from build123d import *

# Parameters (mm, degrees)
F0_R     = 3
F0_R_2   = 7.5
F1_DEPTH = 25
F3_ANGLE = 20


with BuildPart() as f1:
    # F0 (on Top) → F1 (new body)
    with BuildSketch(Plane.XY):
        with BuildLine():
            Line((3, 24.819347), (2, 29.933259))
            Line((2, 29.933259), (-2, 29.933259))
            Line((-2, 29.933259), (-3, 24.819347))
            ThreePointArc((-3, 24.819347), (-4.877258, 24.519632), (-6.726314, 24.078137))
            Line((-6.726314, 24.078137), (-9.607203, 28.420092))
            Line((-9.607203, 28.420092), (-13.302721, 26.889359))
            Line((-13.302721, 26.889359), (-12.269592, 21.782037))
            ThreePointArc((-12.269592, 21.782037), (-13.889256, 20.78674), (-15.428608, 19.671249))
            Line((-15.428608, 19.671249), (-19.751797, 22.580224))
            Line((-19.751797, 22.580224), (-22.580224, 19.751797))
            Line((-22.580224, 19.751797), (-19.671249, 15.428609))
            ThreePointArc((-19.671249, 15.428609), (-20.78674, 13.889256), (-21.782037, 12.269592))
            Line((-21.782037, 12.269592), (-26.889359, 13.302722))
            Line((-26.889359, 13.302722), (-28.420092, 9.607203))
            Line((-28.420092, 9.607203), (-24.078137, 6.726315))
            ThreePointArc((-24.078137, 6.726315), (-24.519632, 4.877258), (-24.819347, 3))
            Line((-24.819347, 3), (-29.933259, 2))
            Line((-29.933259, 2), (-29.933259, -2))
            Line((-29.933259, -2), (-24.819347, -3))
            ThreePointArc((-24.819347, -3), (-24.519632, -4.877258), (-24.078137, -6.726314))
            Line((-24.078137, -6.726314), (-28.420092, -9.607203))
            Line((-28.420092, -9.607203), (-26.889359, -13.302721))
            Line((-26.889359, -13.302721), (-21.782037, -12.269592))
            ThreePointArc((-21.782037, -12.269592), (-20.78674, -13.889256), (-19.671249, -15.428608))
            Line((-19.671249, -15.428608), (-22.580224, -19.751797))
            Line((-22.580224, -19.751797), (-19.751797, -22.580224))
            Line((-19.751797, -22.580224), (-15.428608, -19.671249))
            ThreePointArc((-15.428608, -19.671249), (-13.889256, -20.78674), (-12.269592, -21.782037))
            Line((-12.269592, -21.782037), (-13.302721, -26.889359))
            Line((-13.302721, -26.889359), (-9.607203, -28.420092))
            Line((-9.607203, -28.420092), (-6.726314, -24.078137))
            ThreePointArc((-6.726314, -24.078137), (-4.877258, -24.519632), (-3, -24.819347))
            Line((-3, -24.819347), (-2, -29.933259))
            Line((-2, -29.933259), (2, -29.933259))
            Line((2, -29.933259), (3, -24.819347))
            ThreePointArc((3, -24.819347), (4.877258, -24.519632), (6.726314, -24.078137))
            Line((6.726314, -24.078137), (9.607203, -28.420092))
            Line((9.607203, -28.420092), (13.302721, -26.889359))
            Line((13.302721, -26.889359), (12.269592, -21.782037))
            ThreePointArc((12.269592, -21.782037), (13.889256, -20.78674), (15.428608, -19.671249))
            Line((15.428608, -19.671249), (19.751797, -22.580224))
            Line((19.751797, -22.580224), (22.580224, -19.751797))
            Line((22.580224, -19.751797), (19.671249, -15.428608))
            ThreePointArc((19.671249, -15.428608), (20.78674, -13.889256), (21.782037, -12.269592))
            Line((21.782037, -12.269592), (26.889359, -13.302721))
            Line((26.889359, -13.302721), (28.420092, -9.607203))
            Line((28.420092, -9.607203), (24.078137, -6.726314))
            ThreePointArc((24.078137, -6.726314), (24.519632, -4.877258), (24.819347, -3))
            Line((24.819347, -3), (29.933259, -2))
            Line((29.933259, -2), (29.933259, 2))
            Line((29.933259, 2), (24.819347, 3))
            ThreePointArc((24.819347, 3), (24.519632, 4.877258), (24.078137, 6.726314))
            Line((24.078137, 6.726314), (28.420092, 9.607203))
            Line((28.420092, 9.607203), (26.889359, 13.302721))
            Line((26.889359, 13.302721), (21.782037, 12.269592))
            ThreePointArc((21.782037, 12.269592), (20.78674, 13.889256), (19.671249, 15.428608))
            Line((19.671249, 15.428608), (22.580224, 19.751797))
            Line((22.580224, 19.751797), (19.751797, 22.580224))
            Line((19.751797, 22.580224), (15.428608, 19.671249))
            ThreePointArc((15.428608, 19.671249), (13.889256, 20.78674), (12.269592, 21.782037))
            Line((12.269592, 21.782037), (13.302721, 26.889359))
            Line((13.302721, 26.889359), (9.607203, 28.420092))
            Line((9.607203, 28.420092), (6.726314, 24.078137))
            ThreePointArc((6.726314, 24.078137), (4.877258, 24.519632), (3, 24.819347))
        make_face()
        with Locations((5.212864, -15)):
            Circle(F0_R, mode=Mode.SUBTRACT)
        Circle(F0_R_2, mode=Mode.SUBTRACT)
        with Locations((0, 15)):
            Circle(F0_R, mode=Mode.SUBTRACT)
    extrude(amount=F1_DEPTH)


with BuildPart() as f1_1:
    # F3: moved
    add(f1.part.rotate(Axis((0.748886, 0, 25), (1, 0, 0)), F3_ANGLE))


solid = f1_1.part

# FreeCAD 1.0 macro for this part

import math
import FreeCAD as App
import Part
import Sketcher
Q = App.Units.Quantity

doc = App.newDocument("Part")
params = doc.addObject("Spreadsheet::Sheet", "Params")
for row, (alias, value) in enumerate([
    ("sketch1_diameter", "6 mm"),
    ("sketch1_diameter2", "15 mm"),
    ("sketch1_width", "4 mm"),
    ("sketch1_length", "4 mm"),
    ("pad1_length", "25 mm"),
], start=1):
    params.set(f"A{row}", alias)
    params.set(f"B{row}", "=" + value)
    params.setAlias(f"B{row}", alias)

body = doc.addObject("PartDesign::Body", "Body")

sketch1 = doc.addObject("Sketcher::SketchObject", "Sketch")
body.addObject(sketch1)
sketch1.AttachmentSupport = (doc.XY_Plane, [""])
sketch1.MapMode = "FlatFace"
sketch1.addGeometry([
    Part.LineSegment(App.Vector(3, 24.819347, 0), App.Vector(2, 29.933259, 0)),
    Part.LineSegment(App.Vector(2, 29.933259, 0), App.Vector(-2, 29.933259, 0)),
    Part.LineSegment(App.Vector(-2, 29.933259, 0), App.Vector(-3, 24.819347, 0)),
    Part.ArcOfCircle(Part.Circle(App.Vector(-0.00002, 0.000106, 0), App.Vector(0, 0, 1), 24.999892), math.radians(96.892085), math.radians(105.607917)),
    Part.LineSegment(App.Vector(-6.726314, 24.078137, 0), App.Vector(-9.607203, 28.420092, 0)),
    Part.LineSegment(App.Vector(-9.607203, 28.420092, 0), App.Vector(-13.302721, 26.889359, 0)),
    Part.LineSegment(App.Vector(-13.302721, 26.889359, 0), App.Vector(-12.269592, 21.782037, 0)),
    Part.ArcOfCircle(Part.Circle(App.Vector(0.000046, -0.000059, 0), App.Vector(0, 0, 1), 25.000075), math.radians(119.392129), math.radians(128.107896)),
    Part.LineSegment(App.Vector(-15.428608, 19.671249, 0), App.Vector(-19.751797, 22.580224, 0)),
    Part.LineSegment(App.Vector(-19.751797, 22.580224, 0), App.Vector(-22.580224, 19.751797, 0)),
    Part.LineSegment(App.Vector(-22.580224, 19.751797, 0), App.Vector(-19.671249, 15.428609, 0)),
    Part.ArcOfCircle(Part.Circle(App.Vector(0.00015, -0.000102, 0), App.Vector(0, 0, 1), 25.000181), math.radians(141.89213), math.radians(150.607862)),
    Part.LineSegment(App.Vector(-21.782037, 12.269592, 0), App.Vector(-26.889359, 13.302722, 0)),
    Part.LineSegment(App.Vector(-26.889359, 13.302722, 0), App.Vector(-28.420092, 9.607203, 0)),
    Part.LineSegment(App.Vector(-28.420092, 9.607203, 0), App.Vector(-24.078137, 6.726315, 0)),
    Part.ArcOfCircle(Part.Circle(App.Vector(-0.00006, 0.000013, 0), App.Vector(0, 0, 1), 24.999939), math.radians(164.392093), math.radians(173.107911)),
    Part.LineSegment(App.Vector(-24.819347, 3, 0), App.Vector(-29.933259, 2, 0)),
    Part.LineSegment(App.Vector(-29.933259, 2, 0), App.Vector(-29.933259, -2, 0)),
    Part.LineSegment(App.Vector(-29.933259, -2, 0), App.Vector(-24.819347, -3, 0)),
    Part.ArcOfCircle(Part.Circle(App.Vector(-0.000106, -0.00002, 0), App.Vector(0, 0, 1), 24.999892), math.radians(-173.107915), math.radians(-164.392083)),
    Part.LineSegment(App.Vector(-24.078137, -6.726314, 0), App.Vector(-28.420092, -9.607203, 0)),
    Part.LineSegment(App.Vector(-28.420092, -9.607203, 0), App.Vector(-26.889359, -13.302721, 0)),
    Part.LineSegment(App.Vector(-26.889359, -13.302721, 0), App.Vector(-21.782037, -12.269592, 0)),
    Part.ArcOfCircle(Part.Circle(App.Vector(0.000059, 0.000046, 0), App.Vector(0, 0, 1), 25.000075), math.radians(-150.607871), math.radians(-141.892104)),
    Part.LineSegment(App.Vector(-19.671249, -15.428608, 0), App.Vector(-22.580224, -19.751797, 0)),
    Part.LineSegment(App.Vector(-22.580224, -19.751797, 0), App.Vector(-19.751797, -22.580224, 0)),
    Part.LineSegment(App.Vector(-19.751797, -22.580224, 0), App.Vector(-15.428608, -19.671249, 0)),
    Part.ArcOfCircle(Part.Circle(App.Vector(0.000046, 0.000059, 0), App.Vector(0, 0, 1), 25.000075), math.radians(-128.107896), math.radians(-119.392129)),
    Part.LineSegment(App.Vector(-12.269592, -21.782037, 0), App.Vector(-13.302721, -26.889359, 0)),
    Part.LineSegment(App.Vector(-13.302721, -26.889359, 0), App.Vector(-9.607203, -28.420092, 0)),
    Part.LineSegment(App.Vector(-9.607203, -28.420092, 0), App.Vector(-6.726314, -24.078137, 0)),
    Part.ArcOfCircle(Part.Circle(App.Vector(-0.00002, -0.000106, 0), App.Vector(0, 0, 1), 24.999892), math.radians(-105.607917), math.radians(-96.892085)),
    Part.LineSegment(App.Vector(-3, -24.819347, 0), App.Vector(-2, -29.933259, 0)),
    Part.LineSegment(App.Vector(-2, -29.933259, 0), App.Vector(2, -29.933259, 0)),
    Part.LineSegment(App.Vector(2, -29.933259, 0), App.Vector(3, -24.819347, 0)),
    Part.ArcOfCircle(Part.Circle(App.Vector(0.00002, -0.000106, 0), App.Vector(0, 0, 1), 24.999892), math.radians(-83.107915), math.radians(-74.392083)),
    Part.LineSegment(App.Vector(6.726314, -24.078137, 0), App.Vector(9.607203, -28.420092, 0)),
    Part.LineSegment(App.Vector(9.607203, -28.420092, 0), App.Vector(13.302721, -26.889359, 0)),
    Part.LineSegment(App.Vector(13.302721, -26.889359, 0), App.Vector(12.269592, -21.782037, 0)),
    Part.ArcOfCircle(Part.Circle(App.Vector(-0.000046, 0.000059, 0), App.Vector(0, 0, 1), 25.000075), math.radians(-60.607871), math.radians(-51.892104)),
    Part.LineSegment(App.Vector(15.428608, -19.671249, 0), App.Vector(19.751797, -22.580224, 0)),
    Part.LineSegment(App.Vector(19.751797, -22.580224, 0), App.Vector(22.580224, -19.751797, 0)),
    Part.LineSegment(App.Vector(22.580224, -19.751797, 0), App.Vector(19.671249, -15.428608, 0)),
    Part.ArcOfCircle(Part.Circle(App.Vector(-0.000059, 0.000046, 0), App.Vector(0, 0, 1), 25.000075), math.radians(-38.107896), math.radians(-29.392129)),
    Part.LineSegment(App.Vector(21.782037, -12.269592, 0), App.Vector(26.889359, -13.302721, 0)),
    Part.LineSegment(App.Vector(26.889359, -13.302721, 0), App.Vector(28.420092, -9.607203, 0)),
    Part.LineSegment(App.Vector(28.420092, -9.607203, 0), App.Vector(24.078137, -6.726314, 0)),
    Part.ArcOfCircle(Part.Circle(App.Vector(0.000106, -0.00002, 0), App.Vector(0, 0, 1), 24.999892), math.radians(-15.607917), math.radians(-6.892085)),
    Part.LineSegment(App.Vector(24.819347, -3, 0), App.Vector(29.933259, -2, 0)),
    Part.LineSegment(App.Vector(29.933259, -2, 0), App.Vector(29.933259, 2, 0)),
    Part.LineSegment(App.Vector(29.933259, 2, 0), App.Vector(24.819347, 3, 0)),
    Part.ArcOfCircle(Part.Circle(App.Vector(0.000106, 0.00002, 0), App.Vector(0, 0, 1), 24.999892), math.radians(6.892085), math.radians(15.607917)),
    Part.LineSegment(App.Vector(24.078137, 6.726314, 0), App.Vector(28.420092, 9.607203, 0)),
    Part.LineSegment(App.Vector(28.420092, 9.607203, 0), App.Vector(26.889359, 13.302721, 0)),
    Part.LineSegment(App.Vector(26.889359, 13.302721, 0), App.Vector(21.782037, 12.269592, 0)),
    Part.ArcOfCircle(Part.Circle(App.Vector(-0.000059, -0.000046, 0), App.Vector(0, 0, 1), 25.000075), math.radians(29.392129), math.radians(38.107896)),
    Part.LineSegment(App.Vector(19.671249, 15.428608, 0), App.Vector(22.580224, 19.751797, 0)),
    Part.LineSegment(App.Vector(22.580224, 19.751797, 0), App.Vector(19.751797, 22.580224, 0)),
    Part.LineSegment(App.Vector(19.751797, 22.580224, 0), App.Vector(15.428608, 19.671249, 0)),
    Part.ArcOfCircle(Part.Circle(App.Vector(-0.000046, -0.000059, 0), App.Vector(0, 0, 1), 25.000075), math.radians(51.892104), math.radians(60.607871)),
    Part.LineSegment(App.Vector(12.269592, 21.782037, 0), App.Vector(13.302721, 26.889359, 0)),
    Part.LineSegment(App.Vector(13.302721, 26.889359, 0), App.Vector(9.607203, 28.420092, 0)),
    Part.LineSegment(App.Vector(9.607203, 28.420092, 0), App.Vector(6.726314, 24.078137, 0)),
    Part.ArcOfCircle(Part.Circle(App.Vector(0.00002, 0.000106, 0), App.Vector(0, 0, 1), 24.999892), math.radians(74.392083), math.radians(83.107915)),
    Part.Circle(App.Vector(5.212864, -15, 0), App.Vector(0, 0, 1), 3),
    Part.Circle(App.Vector(0, 0, 0), App.Vector(0, 0, 1), 7.5),
    Part.Circle(App.Vector(0, 15, 0), App.Vector(0, 0, 1), 3),
], False)
sketch1.addConstraint([
    Sketcher.Constraint("Coincident", 0, 2, 1, 1),
    Sketcher.Constraint("Coincident", 1, 2, 2, 1),
    Sketcher.Constraint("Coincident", 2, 2, 3, 1),
    Sketcher.Constraint("Coincident", 3, 2, 4, 1),
    Sketcher.Constraint("Coincident", 4, 2, 5, 1),
    Sketcher.Constraint("Coincident", 5, 2, 6, 1),
    Sketcher.Constraint("Coincident", 6, 2, 7, 1),
    Sketcher.Constraint("Coincident", 7, 2, 8, 1),
    Sketcher.Constraint("Coincident", 8, 2, 9, 1),
    Sketcher.Constraint("Coincident", 9, 2, 10, 1),
    Sketcher.Constraint("Coincident", 10, 2, 11, 1),
    Sketcher.Constraint("Coincident", 11, 2, 12, 1),
    Sketcher.Constraint("Coincident", 12, 2, 13, 1),
    Sketcher.Constraint("Coincident", 13, 2, 14, 1),
    Sketcher.Constraint("Coincident", 14, 2, 15, 1),
    Sketcher.Constraint("Coincident", 15, 2, 16, 1),
    Sketcher.Constraint("Coincident", 16, 2, 17, 1),
    Sketcher.Constraint("Coincident", 17, 2, 18, 1),
    Sketcher.Constraint("Coincident", 18, 2, 19, 1),
    Sketcher.Constraint("Coincident", 19, 2, 20, 1),
    Sketcher.Constraint("Coincident", 20, 2, 21, 1),
    Sketcher.Constraint("Coincident", 21, 2, 22, 1),
    Sketcher.Constraint("Coincident", 22, 2, 23, 1),
    Sketcher.Constraint("Coincident", 23, 2, 24, 1),
    Sketcher.Constraint("Coincident", 24, 2, 25, 1),
    Sketcher.Constraint("Coincident", 25, 2, 26, 1),
    Sketcher.Constraint("Coincident", 26, 2, 27, 1),
    Sketcher.Constraint("Coincident", 27, 2, 28, 1),
    Sketcher.Constraint("Coincident", 28, 2, 29, 1),
    Sketcher.Constraint("Coincident", 29, 2, 30, 1),
    Sketcher.Constraint("Coincident", 30, 2, 31, 1),
    Sketcher.Constraint("Coincident", 31, 2, 32, 1),
    Sketcher.Constraint("Coincident", 32, 2, 33, 1),
    Sketcher.Constraint("Coincident", 33, 2, 34, 1),
    Sketcher.Constraint("Coincident", 34, 2, 35, 1),
    Sketcher.Constraint("Coincident", 35, 2, 36, 1),
    Sketcher.Constraint("Coincident", 36, 2, 37, 1),
    Sketcher.Constraint("Coincident", 37, 2, 38, 1),
    Sketcher.Constraint("Coincident", 38, 2, 39, 1),
    Sketcher.Constraint("Coincident", 39, 2, 40, 1),
    Sketcher.Constraint("Coincident", 40, 2, 41, 1),
    Sketcher.Constraint("Coincident", 41, 2, 42, 1),
    Sketcher.Constraint("Coincident", 42, 2, 43, 1),
    Sketcher.Constraint("Coincident", 43, 2, 44, 1),
    Sketcher.Constraint("Coincident", 44, 2, 45, 1),
    Sketcher.Constraint("Coincident", 45, 2, 46, 1),
    Sketcher.Constraint("Coincident", 46, 2, 47, 1),
    Sketcher.Constraint("Coincident", 47, 2, 48, 1),
    Sketcher.Constraint("Coincident", 48, 2, 49, 1),
    Sketcher.Constraint("Coincident", 49, 2, 50, 1),
    Sketcher.Constraint("Coincident", 50, 2, 51, 1),
    Sketcher.Constraint("Coincident", 51, 2, 52, 1),
    Sketcher.Constraint("Coincident", 52, 2, 53, 1),
    Sketcher.Constraint("Coincident", 53, 2, 54, 1),
    Sketcher.Constraint("Coincident", 54, 2, 55, 1),
    Sketcher.Constraint("Coincident", 55, 2, 56, 1),
    Sketcher.Constraint("Coincident", 56, 2, 57, 1),
    Sketcher.Constraint("Coincident", 57, 2, 58, 1),
    Sketcher.Constraint("Coincident", 58, 2, 59, 1),
    Sketcher.Constraint("Coincident", 59, 2, 60, 1),
    Sketcher.Constraint("Coincident", 60, 2, 61, 1),
    Sketcher.Constraint("Coincident", 61, 2, 62, 1),
    Sketcher.Constraint("Coincident", 62, 2, 63, 1),
    Sketcher.Constraint("Coincident", 63, 2, 0, 1),
    Sketcher.Constraint("Horizontal", 1),
    Sketcher.Constraint("Vertical", 17),
    Sketcher.Constraint("Horizontal", 33),
    Sketcher.Constraint("Vertical", 49),
    Sketcher.Constraint("Coincident", 65, 3, -1, 1),
    Sketcher.Constraint("Equal", 3, 19),
    Sketcher.Constraint("Equal", 7, 23),
    Sketcher.Constraint("Equal", 23, 27),
    Sketcher.Constraint("Equal", 19, 31),
    Sketcher.Constraint("Equal", 31, 35),
    Sketcher.Constraint("Equal", 27, 39),
    Sketcher.Constraint("Equal", 39, 43),
    Sketcher.Constraint("Equal", 35, 47),
    Sketcher.Constraint("Equal", 47, 51),
    Sketcher.Constraint("Equal", 43, 55),
    Sketcher.Constraint("Equal", 55, 59),
    Sketcher.Constraint("Equal", 51, 63),
    Sketcher.Constraint("Equal", 64, 66),
    Sketcher.Constraint("Symmetric", 3, 3, 35, 3, -1, 1),
    Sketcher.Constraint("Symmetric", 7, 3, 39, 3, -1, 1),
    Sketcher.Constraint("Symmetric", 19, 3, 51, 3, -1, 1),
    Sketcher.Constraint("Symmetric", 23, 3, 55, 3, -1, 1),
    Sketcher.Constraint("Symmetric", 27, 3, 59, 3, -1, 1),
    Sketcher.Constraint("Symmetric", 31, 3, 63, 3, -1, 1),
    Sketcher.Constraint("Symmetric", 0, 2, 32, 2, -1, 1),
    Sketcher.Constraint("Symmetric", 4, 2, 36, 2, -1, 1),
    Sketcher.Constraint("Symmetric", 5, 2, 37, 2, -1, 1),
    Sketcher.Constraint("Symmetric", 8, 2, 40, 2, -1, 1),
    Sketcher.Constraint("Symmetric", 9, 2, 41, 2, -1, 1),
    Sketcher.Constraint("Symmetric", 10, 2, 42, 2, -1, 1),
    Sketcher.Constraint("Symmetric", 11, 2, 43, 2, -1, 1),
    Sketcher.Constraint("Symmetric", 12, 2, 44, 2, -1, 1),
    Sketcher.Constraint("Symmetric", 13, 2, 45, 2, -1, 1),
    Sketcher.Constraint("Symmetric", 14, 2, 46, 2, -1, 1),
    Sketcher.Constraint("Symmetric", 15, 2, 47, 2, -1, 1),
    Sketcher.Constraint("Symmetric", 16, 2, 48, 2, -1, 1),
    Sketcher.Constraint("Symmetric", 20, 2, 52, 2, -1, 1),
    Sketcher.Constraint("Symmetric", 21, 2, 53, 2, -1, 1),
    Sketcher.Constraint("Symmetric", 24, 2, 56, 2, -1, 1),
    Sketcher.Constraint("Symmetric", 25, 2, 57, 2, -1, 1),
    Sketcher.Constraint("Symmetric", 28, 2, 60, 2, -1, 1),
    Sketcher.Constraint("Symmetric", 29, 2, 61, 2, -1, 1),
    Sketcher.Constraint("Symmetric", 31, 3, 35, 3, -2),
    Sketcher.Constraint("Symmetric", 27, 3, 39, 3, -2),
    Sketcher.Constraint("Symmetric", 23, 3, 43, 3, -2),
    Sketcher.Constraint("Symmetric", 19, 3, 47, 3, -2),
    Sketcher.Constraint("Symmetric", 29, 2, 36, 2, -2),
    Sketcher.Constraint("Symmetric", 28, 2, 37, 2, -2),
    Sketcher.Constraint("Symmetric", 25, 2, 40, 2, -2),
    Sketcher.Constraint("Symmetric", 24, 2, 41, 2, -2),
    Sketcher.Constraint("Symmetric", 21, 2, 44, 2, -2),
    Sketcher.Constraint("Symmetric", 20, 2, 45, 2, -2),
    Sketcher.Constraint("PointOnObject", 66, 3, -2),
    Sketcher.Constraint("Perpendicular", 0, 16),
    Sketcher.Constraint("Perpendicular", 2, 18),
    Sketcher.Constraint("Perpendicular", 4, 20),
    Sketcher.Constraint("Perpendicular", 5, 21),
    Sketcher.Constraint("Perpendicular", 6, 22),
    Sketcher.Constraint("Perpendicular", 8, 24),
    Sketcher.Constraint("Perpendicular", 9, 25),
    Sketcher.Constraint("Perpendicular", 10, 26),
    Sketcher.Constraint("Perpendicular", 12, 28),
    Sketcher.Constraint("Perpendicular", 14, 30),
    Sketcher.Constraint("Perpendicular", 16, 32),
    Sketcher.Constraint("Perpendicular", 18, 34),
    Sketcher.Constraint("Perpendicular", 20, 36),
    Sketcher.Constraint("Perpendicular", 22, 38),
    Sketcher.Constraint("Perpendicular", 24, 40),
    Sketcher.Constraint("Perpendicular", 34, 50),
    Sketcher.Constraint("Perpendicular", 36, 52),
    Sketcher.Constraint("Perpendicular", 38, 54),
    Sketcher.Constraint("Perpendicular", 40, 56),
    Sketcher.Constraint("Perpendicular", 42, 58),
    Sketcher.Constraint("Perpendicular", 44, 60),
    Sketcher.Constraint("Perpendicular", 46, 62),
    Sketcher.Constraint("Horizontal", 31, 2, 34, 2),
    Sketcher.Constraint("Horizontal", 30, 2, 35, 2),
    Sketcher.Constraint("Horizontal", 27, 2, 38, 2),
    Sketcher.Constraint("Horizontal", 26, 2, 39, 2),
    Sketcher.Constraint("Horizontal", 18, 2, 47, 2),
    Sketcher.Constraint("Horizontal", 17, 2, 48, 2),
    Sketcher.Constraint("Horizontal", 16, 2, 49, 2),
    Sketcher.Constraint("Horizontal", 2, 2, 63, 2),
    Sketcher.Constraint("Vertical", 15, 3, 43, 3),
    Sketcher.Constraint("Equal", 33, 17),
    Sketcher.Constraint("Equal", 2, 4),
    Sketcher.Constraint("Equal", 4, 6),
    Sketcher.Constraint("Equal", 6, 8),
    Sketcher.Constraint("Equal", 5, 9),
    Sketcher.Constraint("Equal", 8, 10),
    Sketcher.Constraint("Equal", 10, 12),
    Sketcher.Constraint("Equal", 9, 13),
    Sketcher.Constraint("Equal", 12, 14),
    Sketcher.Constraint("Equal", 14, 16),
    Sketcher.Constraint("Diameter", 64, Q("6 mm")),
    Sketcher.Constraint("Diameter", 65, Q("15 mm")),
    Sketcher.Constraint("DistanceX", 1, 2, 1, 1, Q("4 mm")),
    Sketcher.Constraint("Distance", 5, Q("4 mm")),
    Sketcher.Constraint("DistanceY", 64, 3, -1, 1, Q("15 mm")),
    Sketcher.Constraint("DistanceY", -1, 1, 66, 3, Q("15 mm")),
    Sketcher.Constraint("DistanceX", 2, 2, -1, 1, Q("3 mm")),
    Sketcher.Constraint("Angle", 5, Q("-157.500009 deg")),
    Sketcher.Constraint("Radius", 11, Q("25.000181 mm")),
    Sketcher.Constraint("Radius", 15, Q("24.999939 mm")),
    Sketcher.Constraint("Radius", 3, Q("24.999892 mm")),
    Sketcher.Constraint("Radius", 7, Q("25.000075 mm")),
    Sketcher.Constraint("DistanceX", -1, 1, 11, 3, Q("0.00015 mm")),
    Sketcher.Constraint("DistanceY", -1, 1, 0, 2, Q("29.933259 mm")),
    Sketcher.Constraint("DistanceX", 5, 2, -1, 1, Q("13.302721 mm")),
    Sketcher.Constraint("DistanceY", -1, 1, 5, 2, Q("26.889359 mm")),
    Sketcher.Constraint("DistanceX", 6, 2, -1, 1, Q("12.269592 mm")),
    Sketcher.Constraint("DistanceY", -1, 1, 7, 2, Q("19.671249 mm")),
    Sketcher.Constraint("DistanceX", 10, 2, -1, 1, Q("19.671249 mm")),
    Sketcher.Constraint("DistanceY", -1, 1, 10, 2, Q("15.428609 mm")),
    Sketcher.Constraint("DistanceY", -1, 1, 11, 2, Q("12.269592 mm")),
    Sketcher.Constraint("DistanceX", 12, 2, -1, 1, Q("26.889359 mm")),
    Sketcher.Constraint("DistanceX", 16, 2, -1, 1, Q("29.933259 mm")),
    Sketcher.Constraint("DistanceX", -1, 1, 64, 3, Q("5.212864 mm")),
])
sketch1.setExpression("Constraints[158]", "Params.sketch1_diameter")
sketch1.setExpression("Constraints[159]", "Params.sketch1_diameter2")
sketch1.setExpression("Constraints[160]", "Params.sketch1_width")
sketch1.setExpression("Constraints[161]", "Params.sketch1_length")
pad1 = doc.addObject("PartDesign::Pad", "Pad")
body.addObject(pad1)
pad1.Profile = sketch1
pad1.setExpression("Length", "Params.pad1_length")
body2 = doc.addObject("PartDesign::Body", "Body001")
doc.recompute()

body.Placement = App.Placement(App.Vector(0, 8.550504, 1.507684), App.Rotation(App.Vector(1, 0, 0), 20))
boolean = doc.addObject("PartDesign::Boolean", "Boolean")
body2.addObject(boolean)
boolean.Type = "Fuse"
boolean.addObjects([body])

doc.recompute()
